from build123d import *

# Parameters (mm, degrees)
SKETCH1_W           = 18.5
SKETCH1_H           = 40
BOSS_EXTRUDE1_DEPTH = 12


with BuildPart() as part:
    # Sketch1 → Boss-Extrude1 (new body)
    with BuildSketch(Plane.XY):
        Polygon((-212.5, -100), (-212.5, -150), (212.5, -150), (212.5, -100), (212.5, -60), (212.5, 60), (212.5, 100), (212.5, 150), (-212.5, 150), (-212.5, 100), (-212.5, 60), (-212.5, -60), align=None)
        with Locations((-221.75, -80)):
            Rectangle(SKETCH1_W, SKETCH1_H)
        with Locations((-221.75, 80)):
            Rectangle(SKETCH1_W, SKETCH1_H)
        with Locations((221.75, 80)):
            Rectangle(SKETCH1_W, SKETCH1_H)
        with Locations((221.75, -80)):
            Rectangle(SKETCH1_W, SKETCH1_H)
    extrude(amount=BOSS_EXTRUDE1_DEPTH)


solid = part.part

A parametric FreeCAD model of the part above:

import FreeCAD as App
import Part
import Sketcher
from FreeCAD import Vector
Q = App.Units.Quantity


def add_polygon(sketch, points):
    """Adds a closed chain of lines whose ends are joined by coincident constraints."""
    first, n = sketch.GeometryCount, len(points)
    for a, b in zip(points, points[1:] + points[:1]):
        sketch.addGeometry(Part.LineSegment(App.Vector(*a, 0), App.Vector(*b, 0)), False)
    for i in range(n):
        sketch.addConstraint(Sketcher.Constraint("Coincident", first + i, 2, first + (i + 1) % n, 1))

doc = App.newDocument("Part")
params = doc.addObject("Spreadsheet::Sheet", "Params")
for row, (alias, value) in enumerate([
    ("sketch1_width", "425 mm"),
    ("sketch1_height", "50 mm"),
    ("sketch1_height2", "40 mm"),
    ("sketch1_height3", "120 mm"),
    ("sketch1_width2", "18.5 mm"),
    ("pad1_length", "12 mm"),
], start=1):
    params.set(f"A{row}", alias)
    params.set(f"B{row}", "=" + value)
    params.setAlias(f"B{row}", alias)

body = doc.addObject("PartDesign::Body", "Body")

sketch1 = body.newObject("Sketcher::SketchObject", "Sketch")
sketch1.AttachmentSupport = (doc.getObject("XY_Plane"), [""])
sketch1.MapMode = "FlatFace"
add_polygon(sketch1, [(-212, -150), (212, -150), (212, -100), (231, -100), (231, -60), (212, -60), (212, 60), (231, 60), (231, 100), (212, 100), (212, 150), (-212, 150), (-212, 100), (-231, 100), (-231, 60), (-212, 60), (-212, -60), (-231, -60), (-231, -100), (-212, -100)])
sketch1.addConstraint(Sketcher.Constraint("Horizontal", 0))
sketch1.addConstraint(Sketcher.Constraint("Vertical", 1))
sketch1.addConstraint(Sketcher.Constraint("Horizontal", 2))
sketch1.addConstraint(Sketcher.Constraint("Vertical", 3))
sketch1.addConstraint(Sketcher.Constraint("Horizontal", 4))
sketch1.addConstraint(Sketcher.Constraint("Vertical", 5))
sketch1.addConstraint(Sketcher.Constraint("Horizontal", 6))
sketch1.addConstraint(Sketcher.Constraint("Vertical", 7))
sketch1.addConstraint(Sketcher.Constraint("Horizontal", 8))
sketch1.addConstraint(Sketcher.Constraint("Vertical", 9))
sketch1.addConstraint(Sketcher.Constraint("Horizontal", 10))
sketch1.addConstraint(Sketcher.Constraint("Vertical", 11))
sketch1.addConstraint(Sketcher.Constraint("Horizontal", 12))
sketch1.addConstraint(Sketcher.Constraint("Vertical", 13))
sketch1.addConstraint(Sketcher.Constraint("Horizontal", 14))
sketch1.addConstraint(Sketcher.Constraint("Vertical", 15))
sketch1.addConstraint(Sketcher.Constraint("Horizontal", 16))
sketch1.addConstraint(Sketcher.Constraint("Vertical", 17))
sketch1.addConstraint(Sketcher.Constraint("Horizontal", 18))
sketch1.addConstraint(Sketcher.Constraint("Vertical", 19))
sketch1.addConstraint(Sketcher.Constraint("Symmetric", 0, 2, 10, 2, -1, 1))
sketch1.addConstraint(Sketcher.Constraint("Symmetric", 2, 2, 12, 2, -1, 1))
sketch1.addConstraint(Sketcher.Constraint("Symmetric", 4, 2, 14, 2, -1, 1))
sketch1.addConstraint(Sketcher.Constraint("Symmetric", 6, 2, 16, 2, -1, 1))
sketch1.addConstraint(Sketcher.Constraint("Symmetric", 8, 2, 18, 2, -1, 1))
sketch1.addConstraint(Sketcher.Constraint("Symmetric", 8, 2, 11, 2, -2))
sketch1.addConstraint(Sketcher.Constraint("Symmetric", 6, 2, 13, 2, -2))
sketch1.addConstraint(Sketcher.Constraint("Vertical", 1, 2, 4, 2))
sketch1.addConstraint(Sketcher.Constraint("DistanceX", 0, 1, 0, 2, Q("425 mm")))
sketch1.addConstraint(Sketcher.Constraint("DistanceY", 1, 1, 1, 2, Q("50 mm")))
sketch1.addConstraint(Sketcher.Constraint("DistanceY", 3, 1, 3, 2, Q("40 mm")))
sketch1.addConstraint(Sketcher.Constraint("DistanceY", 5, 1, 5, 2, Q("120 mm")))
sketch1.addConstraint(Sketcher.Constraint("DistanceX", 2, 1, 2, 2, Q("18.5 mm")))
sketch1.setExpression("Constraints[48]", "Params.sketch1_width")
sketch1.setExpression("Constraints[49]", "Params.sketch1_height")
sketch1.setExpression("Constraints[50]", "Params.sketch1_height2")
sketch1.setExpression("Constraints[51]", "Params.sketch1_height3")
sketch1.setExpression("Constraints[52]", "Params.sketch1_width2")
pad1 = body.newObject("PartDesign::Pad", "Pad")
pad1.Profile = sketch1
pad1.setExpression("Length", "Params.pad1_length")

doc.recompute()
